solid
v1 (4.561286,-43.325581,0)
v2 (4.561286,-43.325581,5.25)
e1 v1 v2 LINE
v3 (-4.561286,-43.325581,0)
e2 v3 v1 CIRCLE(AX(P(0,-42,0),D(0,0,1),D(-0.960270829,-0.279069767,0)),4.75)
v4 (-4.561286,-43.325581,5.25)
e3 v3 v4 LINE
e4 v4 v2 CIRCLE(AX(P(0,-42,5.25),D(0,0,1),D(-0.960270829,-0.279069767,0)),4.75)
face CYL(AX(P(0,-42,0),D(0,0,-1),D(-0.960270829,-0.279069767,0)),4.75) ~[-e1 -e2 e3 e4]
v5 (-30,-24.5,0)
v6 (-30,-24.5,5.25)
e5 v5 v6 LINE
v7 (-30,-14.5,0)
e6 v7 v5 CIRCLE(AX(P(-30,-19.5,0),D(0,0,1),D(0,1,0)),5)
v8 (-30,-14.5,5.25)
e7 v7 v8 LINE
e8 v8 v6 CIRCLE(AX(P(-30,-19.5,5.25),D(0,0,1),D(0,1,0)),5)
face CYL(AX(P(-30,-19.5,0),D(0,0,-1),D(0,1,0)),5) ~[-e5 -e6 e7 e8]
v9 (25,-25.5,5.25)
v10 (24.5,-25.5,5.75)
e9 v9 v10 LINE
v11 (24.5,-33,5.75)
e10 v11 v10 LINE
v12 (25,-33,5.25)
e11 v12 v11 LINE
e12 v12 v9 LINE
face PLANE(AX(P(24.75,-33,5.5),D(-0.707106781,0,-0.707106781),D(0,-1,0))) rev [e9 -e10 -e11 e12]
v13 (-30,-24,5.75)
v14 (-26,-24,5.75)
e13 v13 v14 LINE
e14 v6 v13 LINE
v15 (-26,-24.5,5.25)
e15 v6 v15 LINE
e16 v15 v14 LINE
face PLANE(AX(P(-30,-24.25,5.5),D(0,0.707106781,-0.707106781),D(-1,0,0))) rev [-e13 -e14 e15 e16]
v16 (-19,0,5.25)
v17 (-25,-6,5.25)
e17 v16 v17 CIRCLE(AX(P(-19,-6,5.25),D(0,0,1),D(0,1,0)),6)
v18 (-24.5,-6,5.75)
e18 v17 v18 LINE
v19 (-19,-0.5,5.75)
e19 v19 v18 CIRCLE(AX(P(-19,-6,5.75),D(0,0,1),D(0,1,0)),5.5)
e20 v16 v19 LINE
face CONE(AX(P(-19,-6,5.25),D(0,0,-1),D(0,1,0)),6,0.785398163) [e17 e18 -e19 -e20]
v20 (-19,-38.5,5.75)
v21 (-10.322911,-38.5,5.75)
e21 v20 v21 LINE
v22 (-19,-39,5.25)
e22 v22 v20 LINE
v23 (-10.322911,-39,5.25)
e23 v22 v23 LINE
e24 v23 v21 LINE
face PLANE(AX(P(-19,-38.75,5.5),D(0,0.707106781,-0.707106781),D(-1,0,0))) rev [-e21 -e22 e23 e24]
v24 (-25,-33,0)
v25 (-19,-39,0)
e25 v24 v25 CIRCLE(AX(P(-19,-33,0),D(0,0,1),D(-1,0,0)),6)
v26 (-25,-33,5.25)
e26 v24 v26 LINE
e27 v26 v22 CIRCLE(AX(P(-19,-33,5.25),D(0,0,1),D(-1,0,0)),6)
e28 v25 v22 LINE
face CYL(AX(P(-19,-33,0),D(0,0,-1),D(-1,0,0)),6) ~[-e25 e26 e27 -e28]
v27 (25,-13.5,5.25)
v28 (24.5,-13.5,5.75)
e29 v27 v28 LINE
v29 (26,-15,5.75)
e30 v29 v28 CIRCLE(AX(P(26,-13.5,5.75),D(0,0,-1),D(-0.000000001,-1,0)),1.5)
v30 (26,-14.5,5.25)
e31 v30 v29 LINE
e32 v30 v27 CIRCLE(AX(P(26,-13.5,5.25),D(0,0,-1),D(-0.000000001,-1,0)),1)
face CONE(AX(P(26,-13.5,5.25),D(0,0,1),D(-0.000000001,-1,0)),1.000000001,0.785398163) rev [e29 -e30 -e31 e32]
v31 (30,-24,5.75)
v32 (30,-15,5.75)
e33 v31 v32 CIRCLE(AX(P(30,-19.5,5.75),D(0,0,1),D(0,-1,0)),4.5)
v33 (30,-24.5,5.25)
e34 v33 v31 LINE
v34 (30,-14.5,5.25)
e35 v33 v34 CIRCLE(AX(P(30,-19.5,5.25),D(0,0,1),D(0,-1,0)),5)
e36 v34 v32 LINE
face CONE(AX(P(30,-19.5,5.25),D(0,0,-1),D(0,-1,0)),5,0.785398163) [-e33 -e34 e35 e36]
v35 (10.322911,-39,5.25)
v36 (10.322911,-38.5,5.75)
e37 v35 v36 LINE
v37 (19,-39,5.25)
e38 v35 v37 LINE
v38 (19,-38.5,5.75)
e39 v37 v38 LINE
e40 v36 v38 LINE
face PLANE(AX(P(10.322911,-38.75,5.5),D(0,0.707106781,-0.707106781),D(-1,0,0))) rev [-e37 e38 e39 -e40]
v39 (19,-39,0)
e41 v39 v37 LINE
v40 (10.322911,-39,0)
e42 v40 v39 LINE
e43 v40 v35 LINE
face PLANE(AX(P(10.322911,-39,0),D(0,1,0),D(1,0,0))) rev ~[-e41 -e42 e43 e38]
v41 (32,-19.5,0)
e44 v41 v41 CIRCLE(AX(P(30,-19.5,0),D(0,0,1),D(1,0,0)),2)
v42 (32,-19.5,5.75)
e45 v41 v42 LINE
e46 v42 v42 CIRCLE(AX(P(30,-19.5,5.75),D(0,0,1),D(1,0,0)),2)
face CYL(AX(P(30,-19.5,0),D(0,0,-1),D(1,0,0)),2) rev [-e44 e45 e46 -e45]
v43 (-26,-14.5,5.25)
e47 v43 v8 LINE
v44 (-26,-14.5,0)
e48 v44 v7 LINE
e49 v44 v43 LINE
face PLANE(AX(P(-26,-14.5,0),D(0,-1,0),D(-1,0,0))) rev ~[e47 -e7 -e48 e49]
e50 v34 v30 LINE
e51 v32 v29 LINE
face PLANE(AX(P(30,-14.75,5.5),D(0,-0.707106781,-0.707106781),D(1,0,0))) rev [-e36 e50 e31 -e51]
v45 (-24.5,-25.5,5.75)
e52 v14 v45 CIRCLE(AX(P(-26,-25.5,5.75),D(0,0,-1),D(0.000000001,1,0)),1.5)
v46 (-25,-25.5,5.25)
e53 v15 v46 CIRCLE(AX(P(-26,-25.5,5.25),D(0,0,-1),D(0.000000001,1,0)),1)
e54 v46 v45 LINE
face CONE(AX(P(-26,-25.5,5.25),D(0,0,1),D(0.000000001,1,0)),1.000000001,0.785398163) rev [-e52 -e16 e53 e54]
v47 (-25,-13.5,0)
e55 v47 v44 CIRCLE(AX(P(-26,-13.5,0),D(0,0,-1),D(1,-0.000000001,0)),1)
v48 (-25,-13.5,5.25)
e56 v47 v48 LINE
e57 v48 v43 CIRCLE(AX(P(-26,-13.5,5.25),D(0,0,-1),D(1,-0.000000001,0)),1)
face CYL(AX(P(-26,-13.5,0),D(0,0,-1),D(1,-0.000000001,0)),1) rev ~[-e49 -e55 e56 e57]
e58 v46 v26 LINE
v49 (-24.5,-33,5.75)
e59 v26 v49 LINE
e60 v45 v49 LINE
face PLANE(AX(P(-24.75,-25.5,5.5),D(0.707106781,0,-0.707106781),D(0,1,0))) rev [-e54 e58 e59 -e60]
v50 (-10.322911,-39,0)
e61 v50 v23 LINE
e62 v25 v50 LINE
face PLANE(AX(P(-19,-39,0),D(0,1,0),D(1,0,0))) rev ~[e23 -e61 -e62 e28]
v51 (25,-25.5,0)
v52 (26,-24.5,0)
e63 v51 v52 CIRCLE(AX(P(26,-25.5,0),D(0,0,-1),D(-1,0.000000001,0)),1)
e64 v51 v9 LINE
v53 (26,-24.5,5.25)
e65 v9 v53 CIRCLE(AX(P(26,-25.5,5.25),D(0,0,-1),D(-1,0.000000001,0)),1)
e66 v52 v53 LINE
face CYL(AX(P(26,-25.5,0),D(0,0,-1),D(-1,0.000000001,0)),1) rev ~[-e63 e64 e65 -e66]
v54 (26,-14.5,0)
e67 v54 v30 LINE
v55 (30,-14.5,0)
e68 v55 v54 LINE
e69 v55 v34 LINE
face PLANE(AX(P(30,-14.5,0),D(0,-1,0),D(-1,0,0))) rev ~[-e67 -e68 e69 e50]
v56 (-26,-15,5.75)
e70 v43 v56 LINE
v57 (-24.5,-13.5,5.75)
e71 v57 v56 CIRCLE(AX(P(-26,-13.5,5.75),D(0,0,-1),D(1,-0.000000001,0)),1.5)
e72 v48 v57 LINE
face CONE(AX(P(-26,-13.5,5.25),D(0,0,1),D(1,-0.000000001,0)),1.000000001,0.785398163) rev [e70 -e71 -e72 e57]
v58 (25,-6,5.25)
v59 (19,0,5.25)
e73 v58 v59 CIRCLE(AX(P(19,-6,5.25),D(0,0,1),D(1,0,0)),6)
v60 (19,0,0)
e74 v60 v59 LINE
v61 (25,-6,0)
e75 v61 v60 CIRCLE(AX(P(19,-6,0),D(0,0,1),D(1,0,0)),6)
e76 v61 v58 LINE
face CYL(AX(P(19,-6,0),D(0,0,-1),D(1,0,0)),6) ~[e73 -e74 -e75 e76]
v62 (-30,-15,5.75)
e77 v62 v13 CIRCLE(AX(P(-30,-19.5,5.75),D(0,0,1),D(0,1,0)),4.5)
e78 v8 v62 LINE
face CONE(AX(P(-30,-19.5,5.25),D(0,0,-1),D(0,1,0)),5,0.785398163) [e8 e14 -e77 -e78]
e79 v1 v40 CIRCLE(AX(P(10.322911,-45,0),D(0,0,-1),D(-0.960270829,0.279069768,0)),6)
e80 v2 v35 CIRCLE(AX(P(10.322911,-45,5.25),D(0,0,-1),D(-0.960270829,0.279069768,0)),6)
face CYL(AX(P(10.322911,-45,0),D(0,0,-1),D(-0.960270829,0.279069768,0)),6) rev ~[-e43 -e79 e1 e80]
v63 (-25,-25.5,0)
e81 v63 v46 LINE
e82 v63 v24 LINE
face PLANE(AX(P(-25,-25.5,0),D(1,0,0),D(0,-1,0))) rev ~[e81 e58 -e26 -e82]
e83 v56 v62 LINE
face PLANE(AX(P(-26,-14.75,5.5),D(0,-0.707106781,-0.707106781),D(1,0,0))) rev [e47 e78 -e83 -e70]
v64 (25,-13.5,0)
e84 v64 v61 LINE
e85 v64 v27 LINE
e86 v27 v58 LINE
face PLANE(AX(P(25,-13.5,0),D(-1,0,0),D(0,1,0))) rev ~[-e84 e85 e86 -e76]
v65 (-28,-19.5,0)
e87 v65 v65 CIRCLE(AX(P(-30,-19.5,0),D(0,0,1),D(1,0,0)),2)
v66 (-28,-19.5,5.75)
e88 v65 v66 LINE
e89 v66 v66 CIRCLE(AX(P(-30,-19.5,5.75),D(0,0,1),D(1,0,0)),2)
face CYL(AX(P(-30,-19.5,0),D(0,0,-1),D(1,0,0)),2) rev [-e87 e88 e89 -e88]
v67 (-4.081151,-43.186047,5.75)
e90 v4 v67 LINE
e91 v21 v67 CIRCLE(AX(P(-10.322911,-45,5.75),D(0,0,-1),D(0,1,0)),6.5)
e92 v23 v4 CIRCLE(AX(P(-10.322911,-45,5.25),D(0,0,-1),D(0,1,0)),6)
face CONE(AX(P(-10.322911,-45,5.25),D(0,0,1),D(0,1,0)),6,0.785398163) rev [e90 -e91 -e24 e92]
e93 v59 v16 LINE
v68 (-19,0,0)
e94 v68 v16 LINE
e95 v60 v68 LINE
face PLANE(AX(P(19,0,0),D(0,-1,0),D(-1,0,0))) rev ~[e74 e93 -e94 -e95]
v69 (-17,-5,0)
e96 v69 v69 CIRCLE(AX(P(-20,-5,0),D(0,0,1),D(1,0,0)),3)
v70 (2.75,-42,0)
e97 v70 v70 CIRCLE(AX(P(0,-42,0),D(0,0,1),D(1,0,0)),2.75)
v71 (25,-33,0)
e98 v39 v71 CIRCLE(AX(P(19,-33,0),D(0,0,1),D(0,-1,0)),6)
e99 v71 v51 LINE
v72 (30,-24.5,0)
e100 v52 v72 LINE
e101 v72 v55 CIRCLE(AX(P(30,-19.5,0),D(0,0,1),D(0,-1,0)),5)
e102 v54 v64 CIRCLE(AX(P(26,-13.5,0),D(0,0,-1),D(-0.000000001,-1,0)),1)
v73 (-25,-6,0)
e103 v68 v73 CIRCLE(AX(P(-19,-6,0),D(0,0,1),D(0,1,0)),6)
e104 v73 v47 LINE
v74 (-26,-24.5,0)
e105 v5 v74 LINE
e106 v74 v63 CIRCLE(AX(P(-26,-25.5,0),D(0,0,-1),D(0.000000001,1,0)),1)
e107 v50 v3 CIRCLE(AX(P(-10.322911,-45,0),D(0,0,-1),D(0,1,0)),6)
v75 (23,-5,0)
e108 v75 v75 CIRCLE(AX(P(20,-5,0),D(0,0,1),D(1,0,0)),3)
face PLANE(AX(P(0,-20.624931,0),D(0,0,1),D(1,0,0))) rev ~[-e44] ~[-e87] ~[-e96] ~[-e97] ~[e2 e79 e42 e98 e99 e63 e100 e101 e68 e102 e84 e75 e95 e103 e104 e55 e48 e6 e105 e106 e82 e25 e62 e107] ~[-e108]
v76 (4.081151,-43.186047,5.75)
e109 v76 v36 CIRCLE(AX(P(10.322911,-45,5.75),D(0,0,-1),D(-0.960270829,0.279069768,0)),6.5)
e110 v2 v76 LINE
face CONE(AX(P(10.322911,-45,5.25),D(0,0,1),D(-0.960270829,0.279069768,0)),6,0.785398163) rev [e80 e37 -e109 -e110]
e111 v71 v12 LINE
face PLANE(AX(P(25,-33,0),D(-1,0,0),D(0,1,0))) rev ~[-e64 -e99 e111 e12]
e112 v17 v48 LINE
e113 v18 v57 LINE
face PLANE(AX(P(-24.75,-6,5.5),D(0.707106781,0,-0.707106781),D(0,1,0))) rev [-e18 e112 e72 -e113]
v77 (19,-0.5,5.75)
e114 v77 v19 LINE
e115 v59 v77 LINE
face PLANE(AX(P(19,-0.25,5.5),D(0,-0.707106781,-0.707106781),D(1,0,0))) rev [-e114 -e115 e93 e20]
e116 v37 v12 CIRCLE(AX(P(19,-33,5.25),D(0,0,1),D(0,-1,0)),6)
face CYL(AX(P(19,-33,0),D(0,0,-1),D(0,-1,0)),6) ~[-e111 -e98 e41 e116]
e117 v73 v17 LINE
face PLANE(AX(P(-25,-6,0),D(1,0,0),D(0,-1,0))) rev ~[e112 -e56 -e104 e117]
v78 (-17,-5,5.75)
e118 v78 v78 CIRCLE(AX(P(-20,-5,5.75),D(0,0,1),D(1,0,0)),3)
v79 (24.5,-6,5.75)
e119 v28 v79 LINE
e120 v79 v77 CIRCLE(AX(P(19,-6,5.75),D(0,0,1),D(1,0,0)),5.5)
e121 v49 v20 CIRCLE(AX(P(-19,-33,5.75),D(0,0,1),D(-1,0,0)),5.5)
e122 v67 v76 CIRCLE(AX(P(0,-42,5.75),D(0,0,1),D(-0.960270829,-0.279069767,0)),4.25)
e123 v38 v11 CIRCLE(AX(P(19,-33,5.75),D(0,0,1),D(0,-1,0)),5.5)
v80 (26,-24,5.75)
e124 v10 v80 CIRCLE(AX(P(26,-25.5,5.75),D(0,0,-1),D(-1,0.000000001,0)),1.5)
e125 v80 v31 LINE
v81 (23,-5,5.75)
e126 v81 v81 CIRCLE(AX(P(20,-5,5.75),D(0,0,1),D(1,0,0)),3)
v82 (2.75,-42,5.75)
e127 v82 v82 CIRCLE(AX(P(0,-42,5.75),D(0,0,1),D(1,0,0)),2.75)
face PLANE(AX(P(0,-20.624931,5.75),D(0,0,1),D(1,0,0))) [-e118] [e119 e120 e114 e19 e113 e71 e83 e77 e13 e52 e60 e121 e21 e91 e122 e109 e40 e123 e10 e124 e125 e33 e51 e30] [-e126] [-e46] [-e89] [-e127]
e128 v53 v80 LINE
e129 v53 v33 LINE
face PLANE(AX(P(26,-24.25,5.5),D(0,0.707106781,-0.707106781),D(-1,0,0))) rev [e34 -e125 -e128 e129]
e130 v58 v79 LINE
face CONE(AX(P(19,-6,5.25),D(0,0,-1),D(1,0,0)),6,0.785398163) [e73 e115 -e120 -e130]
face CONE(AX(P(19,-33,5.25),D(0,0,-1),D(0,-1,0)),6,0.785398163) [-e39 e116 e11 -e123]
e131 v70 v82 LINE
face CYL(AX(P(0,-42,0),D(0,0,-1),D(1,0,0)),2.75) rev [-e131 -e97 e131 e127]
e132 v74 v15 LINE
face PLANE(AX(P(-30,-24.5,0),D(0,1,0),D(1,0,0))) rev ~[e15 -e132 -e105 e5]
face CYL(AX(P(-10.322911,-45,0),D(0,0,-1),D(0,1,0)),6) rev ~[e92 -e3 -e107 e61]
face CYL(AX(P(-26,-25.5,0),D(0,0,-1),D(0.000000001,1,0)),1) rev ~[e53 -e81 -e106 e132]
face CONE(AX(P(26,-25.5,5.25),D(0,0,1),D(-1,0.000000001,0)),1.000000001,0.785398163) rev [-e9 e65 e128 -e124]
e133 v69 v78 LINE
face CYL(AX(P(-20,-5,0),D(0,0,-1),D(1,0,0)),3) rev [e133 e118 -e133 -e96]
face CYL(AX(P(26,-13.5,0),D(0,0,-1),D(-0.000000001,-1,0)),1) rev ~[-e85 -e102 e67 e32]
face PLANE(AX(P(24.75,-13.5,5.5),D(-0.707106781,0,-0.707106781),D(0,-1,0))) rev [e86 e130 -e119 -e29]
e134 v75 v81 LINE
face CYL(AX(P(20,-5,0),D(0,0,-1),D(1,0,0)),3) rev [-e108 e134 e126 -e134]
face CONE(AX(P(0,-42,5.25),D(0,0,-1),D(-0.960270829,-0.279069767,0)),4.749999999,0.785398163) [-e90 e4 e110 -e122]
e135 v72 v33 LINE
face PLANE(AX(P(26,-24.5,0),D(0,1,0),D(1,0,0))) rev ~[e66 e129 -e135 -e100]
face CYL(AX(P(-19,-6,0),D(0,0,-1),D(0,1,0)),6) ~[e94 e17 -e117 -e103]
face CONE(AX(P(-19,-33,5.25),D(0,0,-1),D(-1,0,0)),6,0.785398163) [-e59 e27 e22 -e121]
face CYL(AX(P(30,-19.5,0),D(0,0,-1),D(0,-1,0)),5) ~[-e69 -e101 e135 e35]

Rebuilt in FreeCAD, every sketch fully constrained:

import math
import FreeCAD as App
import Part
import Sketcher
from FreeCAD import Vector


def edges_at(feature, points):
    """Names of the edges that pass closest to the given points."""
    edges = feature.Shape.Edges
    near = lambda p: min(range(len(edges)), key=lambda i: edges[i].distToShape(Part.Vertex(*p))[0])
    return sorted({f"Edge{near(p) + 1}" for p in points})

doc = App.newDocument("Part")
body = doc.addObject("PartDesign::Body", "Body")

# Sketch on XY plane
sketch1 = body.newObject("Sketcher::SketchObject", "Sketch")
sketch1.AttachmentSupport = (doc.getObject("XY_Plane"), [""])
sketch1.MapMode = "FlatFace"
sketch1.addGeometry([
    Part.LineSegment(Vector(19, 0, 0), Vector(-19, 0, 0)),  # 0
    Part.ArcOfCircle(Part.Circle(Vector(-19, -6, 0), Vector(0, 0, 1), 6), math.radians(90), math.radians(180)),  # 1
    Part.LineSegment(Vector(-25, -6, 0), Vector(-25, -13.5, 0)),  # 2
    Part.ArcOfCircle(Part.Circle(Vector(-26, -13.5, 0), Vector(0, 0, 1), 1), math.radians(-90), math.radians(0)),  # 3
    Part.LineSegment(Vector(-26, -14.5, 0), Vector(-30, -14.5, 0)),  # 4
    Part.ArcOfCircle(Part.Circle(Vector(-30, -19.5, 0), Vector(0, 0, 1), 5), math.radians(90), math.radians(270)),  # 5
    Part.LineSegment(Vector(-30, -24.5, 0), Vector(-26, -24.5, 0)),  # 6
    Part.ArcOfCircle(Part.Circle(Vector(-26, -25.5, 0), Vector(0, 0, 1), 1), math.radians(0), math.radians(90)),  # 7
    Part.LineSegment(Vector(-25, -25.5, 0), Vector(-25, -33, 0)),  # 8
    Part.ArcOfCircle(Part.Circle(Vector(-19, -33, 0), Vector(0, 0, 1), 6), math.radians(180), math.radians(270)),  # 9
    Part.LineSegment(Vector(-19, -39, 0), Vector(-10.3, -39, 0)),  # 10
    Part.ArcOfCircle(Part.Circle(Vector(-10.3, -45, 0), Vector(0, 0, 1), 6), math.radians(16), math.radians(90)),  # 11
    Part.ArcOfCircle(Part.Circle(Vector(0, -42, 0), Vector(0, 0, 1), 4.7), math.radians(-164), math.radians(-16)),  # 12
    Part.ArcOfCircle(Part.Circle(Vector(10.3, -45, 0), Vector(0, 0, 1), 6), math.radians(90), math.radians(164)),  # 13
    Part.LineSegment(Vector(10.3, -39, 0), Vector(19, -39, 0)),  # 14
    Part.ArcOfCircle(Part.Circle(Vector(19, -33, 0), Vector(0, 0, 1), 6), math.radians(-90), math.radians(0)),  # 15
    Part.LineSegment(Vector(25, -33, 0), Vector(25, -25.5, 0)),  # 16
    Part.ArcOfCircle(Part.Circle(Vector(26, -25.5, 0), Vector(0, 0, 1), 1), math.radians(90), math.radians(180)),  # 17
    Part.LineSegment(Vector(26, -24.5, 0), Vector(30, -24.5, 0)),  # 18
    Part.ArcOfCircle(Part.Circle(Vector(30, -19.5, 0), Vector(0, 0, 1), 5), math.radians(-90), math.radians(90)),  # 19
    Part.LineSegment(Vector(30, -14.5, 0), Vector(26, -14.5, 0)),  # 20
    Part.ArcOfCircle(Part.Circle(Vector(26, -13.5, 0), Vector(0, 0, 1), 1), math.radians(-180), math.radians(-90)),  # 21
    Part.LineSegment(Vector(25, -13.5, 0), Vector(25, -6, 0)),  # 22
    Part.ArcOfCircle(Part.Circle(Vector(19, -6, 0), Vector(0, 0, 1), 6), math.radians(0), math.radians(90)),  # 23
    Part.Circle(Vector(0, -42, 0), Vector(0, 0, 1), 2.8),  # 24
    Part.Circle(Vector(-30, -19.5, 0), Vector(0, 0, 1), 2),  # 25
    Part.Circle(Vector(-20, -5, 0), Vector(0, 0, 1), 3),  # 26
    Part.Circle(Vector(30, -19.5, 0), Vector(0, 0, 1), 2),  # 27
    Part.Circle(Vector(20, -5, 0), Vector(0, 0, 1), 3),  # 28
], False)
sketch1.addConstraint([
    Sketcher.Constraint("Tangent", 0, 2, 1, 1),
    Sketcher.Constraint("Tangent", 1, 2, 2, 1),
    Sketcher.Constraint("Tangent", 2, 2, 3, 2),
    Sketcher.Constraint("Tangent", 3, 1, 4, 1),
    Sketcher.Constraint("Tangent", 4, 2, 5, 1),
    Sketcher.Constraint("Tangent", 5, 2, 6, 1),
    Sketcher.Constraint("Tangent", 6, 2, 7, 2),
    Sketcher.Constraint("Tangent", 7, 1, 8, 1),
    Sketcher.Constraint("Tangent", 8, 2, 9, 1),
    Sketcher.Constraint("Tangent", 9, 2, 10, 1),
    Sketcher.Constraint("Tangent", 10, 2, 11, 2),
    Sketcher.Constraint("Tangent", 11, 1, 12, 1),
    Sketcher.Constraint("Tangent", 12, 2, 13, 2),
    Sketcher.Constraint("Tangent", 13, 1, 14, 1),
    Sketcher.Constraint("Tangent", 14, 2, 15, 1),
    Sketcher.Constraint("Tangent", 15, 2, 16, 1),
    Sketcher.Constraint("Tangent", 16, 2, 17, 2),
    Sketcher.Constraint("Tangent", 17, 1, 18, 1),
    Sketcher.Constraint("Tangent", 18, 2, 19, 1),
    Sketcher.Constraint("Tangent", 19, 2, 20, 1),
    Sketcher.Constraint("Tangent", 20, 2, 21, 2),
    Sketcher.Constraint("Tangent", 21, 1, 22, 1),
    Sketcher.Constraint("Tangent", 22, 2, 23, 1),
    Sketcher.Constraint("Tangent", 23, 2, 0, 1),
    Sketcher.Constraint("Horizontal", 0),
    Sketcher.Constraint("Vertical", 2),
    Sketcher.Constraint("Horizontal", 4),
    Sketcher.Constraint("Horizontal", 6),
    Sketcher.Constraint("Vertical", 8),
    Sketcher.Constraint("Horizontal", 10),
    Sketcher.Constraint("Horizontal", 14),
    Sketcher.Constraint("Vertical", 16),
    Sketcher.Constraint("Horizontal", 18),
    Sketcher.Constraint("Horizontal", 20),
    Sketcher.Constraint("Vertical", 22),
    Sketcher.Constraint("Coincident", 24, 3, 12, 3),
    Sketcher.Constraint("Coincident", 25, 3, 5, 3),
    Sketcher.Constraint("Coincident", 27, 3, 19, 3),
    Sketcher.Constraint("Equal", 3, 7),
    Sketcher.Constraint("Equal", 1, 9),
    Sketcher.Constraint("Equal", 9, 11),
    Sketcher.Constraint("Equal", 11, 13),
    Sketcher.Constraint("Equal", 13, 15),
    Sketcher.Constraint("Equal", 7, 17),
    Sketcher.Constraint("Equal", 5, 19),
    Sketcher.Constraint("Equal", 17, 21),
    Sketcher.Constraint("Equal", 15, 23),
    Sketcher.Constraint("Equal", 25, 27),
    Sketcher.Constraint("Equal", 26, 28),
    Sketcher.Constraint("Symmetric", 0, 2, 23, 2, -1, 1),
    Sketcher.Constraint("Symmetric", 11, 3, 13, 3, -2),
    Sketcher.Constraint("Symmetric", 7, 3, 17, 3, -2),
    Sketcher.Constraint("Symmetric", 26, 3, 28, 3, -2),
    Sketcher.Constraint("Vertical", 3, 3, 7, 3),
    Sketcher.Constraint("Equal", 6, 18),
    Sketcher.Constraint("Equal", 2, 8),
    Sketcher.Constraint("Diameter", 25, 4.0),
    Sketcher.Constraint("Diameter", 26, 6.0),
    Sketcher.Constraint("Radius", 1, 6.0),
    Sketcher.Constraint("Radius", 3, 1.0),
    Sketcher.Constraint("Radius", 5, 5.0),
    Sketcher.Constraint("Diameter", 24, 5.5),
    Sketcher.Constraint("DistanceX", 0, 2, 0, 1, 38.0),
    Sketcher.Constraint("DistanceX", 4, 2, 4, 1, 4.0),
    Sketcher.Constraint("Radius", 12, 4.75),
    Sketcher.Constraint("DistanceY", 2, 2, 2, 1, 7.5),
    Sketcher.Constraint("DistanceY", 12, 3, -1, 1, 42.0),
    Sketcher.Constraint("DistanceX", 26, 3, -1, 1, 20.0),
    Sketcher.Constraint("DistanceY", 26, 3, -1, 1, 5.0),
])
pad1 = body.newObject("PartDesign::Pad", "Pad")
pad1.Profile = sketch1
pad1.Length = 5.75
doc.recompute()

chamfer = body.newObject("PartDesign::Chamfer", "Chamfer")
chamfer.Base = (pad1, edges_at(pad1, [
    (35, -19.5, 5.75),
    (28, -14.5, 5.75),
    (25.293, -14.207, 5.75),
    (25, -9.75, 5.75),
    (23.243, -1.757, 5.75),
    (0, 0, 5.75),
    (-23.243, -1.757, 5.75),
    (-25, -9.75, 5.75),
    (-25.293, -14.207, 5.75),
    (-28, -14.5, 5.75),
    (-35, -19.5, 5.75),
    (-28, -24.5, 5.75),
    (-25.293, -24.793, 5.75),
    (-25, -29.25, 5.75),
    (-23.243, -37.243, 5.75),
    (-14.661, -39, 5.75),
    (-6.721, -40.202, 5.75),
    (0, -46.75, 5.75),
    (6.721, -40.202, 5.75),
    (14.661, -39, 5.75),
    (23.243, -37.243, 5.75),
    (25, -29.25, 5.75),
    (25.293, -24.793, 5.75),
    (28, -24.5, 5.75),
]))
chamfer.Size = 0.5

doc.recompute()
